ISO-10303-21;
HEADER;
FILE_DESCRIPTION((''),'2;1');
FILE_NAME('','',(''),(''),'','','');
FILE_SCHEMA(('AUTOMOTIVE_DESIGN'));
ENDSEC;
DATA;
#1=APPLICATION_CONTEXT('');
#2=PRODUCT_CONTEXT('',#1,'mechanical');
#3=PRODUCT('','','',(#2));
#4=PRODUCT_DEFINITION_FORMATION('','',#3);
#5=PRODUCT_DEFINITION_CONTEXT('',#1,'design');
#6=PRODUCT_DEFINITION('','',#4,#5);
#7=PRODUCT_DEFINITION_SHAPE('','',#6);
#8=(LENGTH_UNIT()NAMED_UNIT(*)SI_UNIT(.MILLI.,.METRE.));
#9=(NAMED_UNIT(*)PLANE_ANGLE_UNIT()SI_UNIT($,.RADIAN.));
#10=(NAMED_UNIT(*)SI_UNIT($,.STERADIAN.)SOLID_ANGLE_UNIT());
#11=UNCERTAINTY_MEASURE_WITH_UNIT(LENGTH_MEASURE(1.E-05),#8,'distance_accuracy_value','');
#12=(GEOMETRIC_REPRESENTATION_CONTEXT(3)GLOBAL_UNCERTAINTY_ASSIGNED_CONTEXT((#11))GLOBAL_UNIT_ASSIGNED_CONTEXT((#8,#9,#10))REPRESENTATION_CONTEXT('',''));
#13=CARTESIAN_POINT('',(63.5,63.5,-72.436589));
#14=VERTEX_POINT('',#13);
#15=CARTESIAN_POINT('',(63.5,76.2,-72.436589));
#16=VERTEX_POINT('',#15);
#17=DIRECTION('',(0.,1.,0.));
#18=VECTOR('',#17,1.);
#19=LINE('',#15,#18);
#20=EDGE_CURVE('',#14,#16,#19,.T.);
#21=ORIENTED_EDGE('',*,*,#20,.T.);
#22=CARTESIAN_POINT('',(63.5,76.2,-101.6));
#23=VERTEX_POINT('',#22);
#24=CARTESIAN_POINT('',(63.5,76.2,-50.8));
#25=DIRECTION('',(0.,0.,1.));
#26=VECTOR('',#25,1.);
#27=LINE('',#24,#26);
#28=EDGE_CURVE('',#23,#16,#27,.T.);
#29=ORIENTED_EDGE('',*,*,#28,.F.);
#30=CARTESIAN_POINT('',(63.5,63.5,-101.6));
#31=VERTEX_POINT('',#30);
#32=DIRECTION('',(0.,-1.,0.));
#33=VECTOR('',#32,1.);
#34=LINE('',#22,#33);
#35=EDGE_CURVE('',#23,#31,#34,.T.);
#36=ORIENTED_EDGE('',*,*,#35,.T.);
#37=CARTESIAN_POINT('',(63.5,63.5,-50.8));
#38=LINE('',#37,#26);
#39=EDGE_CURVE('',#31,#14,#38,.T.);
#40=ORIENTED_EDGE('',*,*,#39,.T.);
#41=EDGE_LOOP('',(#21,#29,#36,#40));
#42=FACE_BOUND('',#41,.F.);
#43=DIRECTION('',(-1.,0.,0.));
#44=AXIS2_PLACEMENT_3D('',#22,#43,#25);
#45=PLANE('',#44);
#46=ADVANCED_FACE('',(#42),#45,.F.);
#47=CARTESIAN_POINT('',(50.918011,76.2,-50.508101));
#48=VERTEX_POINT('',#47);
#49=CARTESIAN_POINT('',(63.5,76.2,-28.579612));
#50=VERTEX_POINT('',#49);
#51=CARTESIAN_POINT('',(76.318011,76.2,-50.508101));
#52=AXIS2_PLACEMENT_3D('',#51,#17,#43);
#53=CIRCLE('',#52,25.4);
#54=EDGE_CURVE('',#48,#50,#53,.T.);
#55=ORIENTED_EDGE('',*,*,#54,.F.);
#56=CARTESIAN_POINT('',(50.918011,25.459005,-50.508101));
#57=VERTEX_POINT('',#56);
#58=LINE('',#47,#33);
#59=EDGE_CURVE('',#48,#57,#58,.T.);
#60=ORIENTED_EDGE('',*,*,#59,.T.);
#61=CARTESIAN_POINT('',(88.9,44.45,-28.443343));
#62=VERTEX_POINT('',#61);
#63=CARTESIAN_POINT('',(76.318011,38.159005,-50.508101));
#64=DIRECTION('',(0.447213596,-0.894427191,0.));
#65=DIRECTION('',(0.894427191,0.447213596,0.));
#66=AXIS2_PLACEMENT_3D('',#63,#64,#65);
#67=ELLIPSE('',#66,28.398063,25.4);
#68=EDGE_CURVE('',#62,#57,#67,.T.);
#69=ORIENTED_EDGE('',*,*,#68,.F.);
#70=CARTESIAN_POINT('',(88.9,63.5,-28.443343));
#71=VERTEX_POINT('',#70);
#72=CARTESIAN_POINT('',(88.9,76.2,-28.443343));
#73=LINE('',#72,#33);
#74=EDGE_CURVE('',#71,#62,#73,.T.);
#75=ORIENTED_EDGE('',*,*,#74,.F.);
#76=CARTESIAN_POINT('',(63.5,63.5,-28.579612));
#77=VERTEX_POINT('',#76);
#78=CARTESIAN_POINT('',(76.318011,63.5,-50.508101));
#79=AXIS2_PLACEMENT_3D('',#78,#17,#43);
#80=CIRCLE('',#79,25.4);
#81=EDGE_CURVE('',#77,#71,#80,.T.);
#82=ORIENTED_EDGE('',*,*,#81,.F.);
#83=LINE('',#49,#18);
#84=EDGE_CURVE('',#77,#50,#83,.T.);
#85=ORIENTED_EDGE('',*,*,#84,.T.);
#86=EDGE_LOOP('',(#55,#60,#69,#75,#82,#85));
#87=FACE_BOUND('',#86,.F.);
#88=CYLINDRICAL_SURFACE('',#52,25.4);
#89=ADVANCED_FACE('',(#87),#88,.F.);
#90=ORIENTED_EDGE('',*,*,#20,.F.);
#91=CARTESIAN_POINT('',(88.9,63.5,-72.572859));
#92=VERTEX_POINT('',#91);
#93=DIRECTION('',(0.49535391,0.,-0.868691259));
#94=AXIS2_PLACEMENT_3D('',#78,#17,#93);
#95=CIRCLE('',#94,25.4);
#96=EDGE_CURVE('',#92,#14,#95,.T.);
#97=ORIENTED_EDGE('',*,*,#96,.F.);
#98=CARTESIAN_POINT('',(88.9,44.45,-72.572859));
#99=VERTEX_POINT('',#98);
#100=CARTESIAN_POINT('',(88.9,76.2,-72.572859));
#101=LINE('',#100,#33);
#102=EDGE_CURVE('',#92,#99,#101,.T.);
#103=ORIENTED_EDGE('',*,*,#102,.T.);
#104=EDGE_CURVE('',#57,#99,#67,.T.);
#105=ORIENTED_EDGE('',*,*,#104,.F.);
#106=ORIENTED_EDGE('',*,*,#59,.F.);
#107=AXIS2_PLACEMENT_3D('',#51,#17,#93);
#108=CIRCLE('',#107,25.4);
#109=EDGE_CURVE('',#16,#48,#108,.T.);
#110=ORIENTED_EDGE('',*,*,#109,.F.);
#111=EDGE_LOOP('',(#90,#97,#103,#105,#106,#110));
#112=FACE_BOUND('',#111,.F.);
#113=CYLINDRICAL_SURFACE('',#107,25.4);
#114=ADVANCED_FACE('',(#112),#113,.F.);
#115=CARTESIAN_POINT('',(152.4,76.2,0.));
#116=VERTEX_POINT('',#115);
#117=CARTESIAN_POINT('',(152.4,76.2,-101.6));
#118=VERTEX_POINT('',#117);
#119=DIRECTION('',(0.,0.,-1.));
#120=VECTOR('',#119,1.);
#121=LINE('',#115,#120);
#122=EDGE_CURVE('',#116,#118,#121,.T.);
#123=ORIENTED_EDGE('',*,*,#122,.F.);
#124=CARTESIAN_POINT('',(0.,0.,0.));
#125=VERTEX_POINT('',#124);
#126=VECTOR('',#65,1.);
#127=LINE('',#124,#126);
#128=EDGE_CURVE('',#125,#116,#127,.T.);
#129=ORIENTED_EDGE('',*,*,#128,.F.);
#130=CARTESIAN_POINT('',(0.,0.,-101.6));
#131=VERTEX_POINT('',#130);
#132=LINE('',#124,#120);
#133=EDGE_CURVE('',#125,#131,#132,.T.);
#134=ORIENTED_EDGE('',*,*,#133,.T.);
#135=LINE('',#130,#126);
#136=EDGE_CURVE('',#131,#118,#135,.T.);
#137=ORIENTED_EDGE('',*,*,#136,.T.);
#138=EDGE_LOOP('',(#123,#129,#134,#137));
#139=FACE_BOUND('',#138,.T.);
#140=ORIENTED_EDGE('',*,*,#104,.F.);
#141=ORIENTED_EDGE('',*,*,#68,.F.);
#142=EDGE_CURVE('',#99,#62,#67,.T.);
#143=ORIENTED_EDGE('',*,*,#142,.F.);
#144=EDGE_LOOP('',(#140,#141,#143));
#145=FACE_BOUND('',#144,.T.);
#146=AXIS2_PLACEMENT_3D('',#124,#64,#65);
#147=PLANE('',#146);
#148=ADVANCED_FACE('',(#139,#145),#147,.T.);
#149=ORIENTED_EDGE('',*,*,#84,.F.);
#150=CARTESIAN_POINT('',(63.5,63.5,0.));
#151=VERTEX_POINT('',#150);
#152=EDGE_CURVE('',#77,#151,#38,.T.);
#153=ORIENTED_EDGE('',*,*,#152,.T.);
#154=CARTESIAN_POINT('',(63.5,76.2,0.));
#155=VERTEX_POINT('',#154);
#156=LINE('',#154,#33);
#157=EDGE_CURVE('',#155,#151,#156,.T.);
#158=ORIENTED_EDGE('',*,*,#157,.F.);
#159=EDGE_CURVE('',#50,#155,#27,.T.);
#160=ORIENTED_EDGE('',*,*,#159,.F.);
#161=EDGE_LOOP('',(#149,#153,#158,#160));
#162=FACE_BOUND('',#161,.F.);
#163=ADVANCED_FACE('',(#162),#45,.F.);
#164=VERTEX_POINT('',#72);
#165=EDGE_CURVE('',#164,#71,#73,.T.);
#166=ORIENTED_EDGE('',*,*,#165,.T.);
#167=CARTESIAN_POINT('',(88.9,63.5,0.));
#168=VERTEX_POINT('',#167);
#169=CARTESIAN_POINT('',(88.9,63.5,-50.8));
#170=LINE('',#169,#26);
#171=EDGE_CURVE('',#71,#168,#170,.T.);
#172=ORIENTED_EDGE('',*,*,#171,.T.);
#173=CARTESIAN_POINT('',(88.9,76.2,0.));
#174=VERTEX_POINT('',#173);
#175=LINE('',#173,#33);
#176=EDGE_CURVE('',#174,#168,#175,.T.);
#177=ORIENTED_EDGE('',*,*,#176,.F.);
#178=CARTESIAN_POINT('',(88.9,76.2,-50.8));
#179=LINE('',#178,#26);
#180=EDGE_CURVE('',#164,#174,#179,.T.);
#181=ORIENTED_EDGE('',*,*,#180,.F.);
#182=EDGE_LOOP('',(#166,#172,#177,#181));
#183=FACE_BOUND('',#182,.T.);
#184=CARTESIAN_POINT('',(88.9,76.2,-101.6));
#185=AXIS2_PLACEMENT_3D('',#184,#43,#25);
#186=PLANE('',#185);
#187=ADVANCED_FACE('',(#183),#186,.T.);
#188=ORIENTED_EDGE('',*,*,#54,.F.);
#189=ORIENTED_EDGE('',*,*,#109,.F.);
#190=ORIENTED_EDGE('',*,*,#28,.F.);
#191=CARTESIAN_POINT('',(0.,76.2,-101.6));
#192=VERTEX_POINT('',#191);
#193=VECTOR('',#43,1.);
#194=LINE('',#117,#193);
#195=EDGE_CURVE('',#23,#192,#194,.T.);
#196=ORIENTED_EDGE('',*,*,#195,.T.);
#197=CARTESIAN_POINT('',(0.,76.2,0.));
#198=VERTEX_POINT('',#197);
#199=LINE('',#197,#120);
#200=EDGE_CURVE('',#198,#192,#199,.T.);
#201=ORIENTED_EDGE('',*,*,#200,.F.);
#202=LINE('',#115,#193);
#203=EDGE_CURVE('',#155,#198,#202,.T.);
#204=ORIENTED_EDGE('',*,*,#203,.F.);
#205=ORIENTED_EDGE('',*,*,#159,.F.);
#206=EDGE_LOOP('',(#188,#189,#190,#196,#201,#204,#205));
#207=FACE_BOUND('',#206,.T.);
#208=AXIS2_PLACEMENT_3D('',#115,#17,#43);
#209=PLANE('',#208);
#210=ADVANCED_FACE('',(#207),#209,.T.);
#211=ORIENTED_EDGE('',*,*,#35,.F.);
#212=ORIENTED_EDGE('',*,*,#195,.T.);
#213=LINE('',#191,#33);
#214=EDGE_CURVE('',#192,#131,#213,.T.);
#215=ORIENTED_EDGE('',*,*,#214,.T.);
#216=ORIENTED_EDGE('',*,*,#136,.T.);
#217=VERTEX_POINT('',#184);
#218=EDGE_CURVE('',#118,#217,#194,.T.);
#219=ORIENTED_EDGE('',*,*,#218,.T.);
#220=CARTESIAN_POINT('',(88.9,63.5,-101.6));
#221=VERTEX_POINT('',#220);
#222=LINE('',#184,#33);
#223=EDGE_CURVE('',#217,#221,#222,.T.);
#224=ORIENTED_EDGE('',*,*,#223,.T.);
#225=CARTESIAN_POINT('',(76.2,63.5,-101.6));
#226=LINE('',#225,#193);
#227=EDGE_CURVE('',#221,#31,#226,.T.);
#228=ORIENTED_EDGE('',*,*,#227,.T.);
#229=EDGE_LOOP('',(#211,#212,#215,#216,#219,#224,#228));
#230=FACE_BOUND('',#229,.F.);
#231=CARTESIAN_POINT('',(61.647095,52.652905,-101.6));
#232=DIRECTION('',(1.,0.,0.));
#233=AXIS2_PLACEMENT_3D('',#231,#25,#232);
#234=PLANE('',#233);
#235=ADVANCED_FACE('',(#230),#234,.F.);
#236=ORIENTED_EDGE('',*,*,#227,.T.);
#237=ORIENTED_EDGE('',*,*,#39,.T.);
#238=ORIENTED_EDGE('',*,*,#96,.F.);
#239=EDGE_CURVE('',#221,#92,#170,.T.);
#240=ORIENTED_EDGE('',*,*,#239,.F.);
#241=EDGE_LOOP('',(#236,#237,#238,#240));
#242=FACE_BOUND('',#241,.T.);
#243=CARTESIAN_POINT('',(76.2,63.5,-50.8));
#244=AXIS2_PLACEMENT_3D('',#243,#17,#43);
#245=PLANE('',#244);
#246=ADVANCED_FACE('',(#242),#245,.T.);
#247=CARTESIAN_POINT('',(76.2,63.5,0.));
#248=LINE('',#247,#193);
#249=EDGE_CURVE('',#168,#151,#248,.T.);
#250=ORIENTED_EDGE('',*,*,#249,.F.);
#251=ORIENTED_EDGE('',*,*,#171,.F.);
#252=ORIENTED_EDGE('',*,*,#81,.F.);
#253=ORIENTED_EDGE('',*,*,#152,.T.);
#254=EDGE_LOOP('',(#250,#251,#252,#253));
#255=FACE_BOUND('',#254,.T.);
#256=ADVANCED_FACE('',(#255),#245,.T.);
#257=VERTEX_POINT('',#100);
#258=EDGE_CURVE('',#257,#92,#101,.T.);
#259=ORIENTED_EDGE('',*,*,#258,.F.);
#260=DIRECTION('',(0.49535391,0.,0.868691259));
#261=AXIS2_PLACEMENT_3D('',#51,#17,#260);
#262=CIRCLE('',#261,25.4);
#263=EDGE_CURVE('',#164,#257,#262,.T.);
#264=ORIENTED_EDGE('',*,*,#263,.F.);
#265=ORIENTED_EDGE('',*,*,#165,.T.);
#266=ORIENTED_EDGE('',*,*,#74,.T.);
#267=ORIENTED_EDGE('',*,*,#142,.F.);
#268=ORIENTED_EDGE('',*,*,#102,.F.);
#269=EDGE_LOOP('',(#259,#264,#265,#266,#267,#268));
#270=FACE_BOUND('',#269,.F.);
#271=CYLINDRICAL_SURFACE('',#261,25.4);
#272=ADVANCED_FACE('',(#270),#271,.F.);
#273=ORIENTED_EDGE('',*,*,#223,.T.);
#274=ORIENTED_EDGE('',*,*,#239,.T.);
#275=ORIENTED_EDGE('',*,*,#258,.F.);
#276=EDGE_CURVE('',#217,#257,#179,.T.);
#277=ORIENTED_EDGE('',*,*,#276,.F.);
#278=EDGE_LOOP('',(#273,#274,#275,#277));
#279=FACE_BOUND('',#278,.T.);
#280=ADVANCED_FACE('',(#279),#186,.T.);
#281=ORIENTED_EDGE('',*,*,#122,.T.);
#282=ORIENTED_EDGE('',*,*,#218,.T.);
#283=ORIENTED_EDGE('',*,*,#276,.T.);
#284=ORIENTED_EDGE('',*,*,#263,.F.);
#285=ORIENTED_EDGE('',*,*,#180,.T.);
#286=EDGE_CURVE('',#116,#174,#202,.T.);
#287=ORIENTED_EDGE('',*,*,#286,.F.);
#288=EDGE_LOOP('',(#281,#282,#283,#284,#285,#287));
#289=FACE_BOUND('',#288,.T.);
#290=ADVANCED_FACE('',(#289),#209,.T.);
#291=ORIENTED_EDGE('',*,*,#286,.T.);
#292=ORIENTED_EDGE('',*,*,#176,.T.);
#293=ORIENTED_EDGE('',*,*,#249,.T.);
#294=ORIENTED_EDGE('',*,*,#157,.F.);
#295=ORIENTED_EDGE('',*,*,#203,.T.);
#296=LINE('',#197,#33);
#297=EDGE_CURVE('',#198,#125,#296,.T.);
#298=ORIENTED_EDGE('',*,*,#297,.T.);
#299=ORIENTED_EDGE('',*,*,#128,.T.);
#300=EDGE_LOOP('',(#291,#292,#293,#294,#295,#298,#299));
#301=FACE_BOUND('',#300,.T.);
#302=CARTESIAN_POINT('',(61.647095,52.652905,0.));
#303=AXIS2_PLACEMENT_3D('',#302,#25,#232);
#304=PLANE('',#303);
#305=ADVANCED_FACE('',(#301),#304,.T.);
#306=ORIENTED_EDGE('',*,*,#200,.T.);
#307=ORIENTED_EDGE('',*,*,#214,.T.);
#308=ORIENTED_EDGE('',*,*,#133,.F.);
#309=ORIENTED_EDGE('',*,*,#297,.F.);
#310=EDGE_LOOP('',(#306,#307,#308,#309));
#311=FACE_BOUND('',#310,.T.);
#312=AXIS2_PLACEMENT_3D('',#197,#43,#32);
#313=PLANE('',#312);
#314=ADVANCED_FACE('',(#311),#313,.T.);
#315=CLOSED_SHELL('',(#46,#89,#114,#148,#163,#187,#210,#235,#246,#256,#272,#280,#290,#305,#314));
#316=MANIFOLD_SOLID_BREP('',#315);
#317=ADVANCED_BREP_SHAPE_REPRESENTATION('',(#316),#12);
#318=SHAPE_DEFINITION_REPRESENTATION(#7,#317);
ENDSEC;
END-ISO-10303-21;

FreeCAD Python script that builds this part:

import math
import FreeCAD as App
import Part
import Sketcher
from FreeCAD import Vector
Q = App.Units.Quantity

doc = App.newDocument("Part")
params = doc.addObject("Spreadsheet::Sheet", "Params")
for row, (alias, value) in enumerate([
    ("sketch1_width", "6 in"),
    ("sketch1_height", "3 in"),
    ("pad1_length", "4 in"),
    ("sketch2_width", "1 in"),
    ("sketch2_height", "4 in"),
    ("pocket1_length", "0.5 in"),
    ("sketch3_radius", "1 in"),
], start=1):
    params.set(f"A{row}", alias)
    params.set(f"B{row}", "=" + value)
    params.setAlias(f"B{row}", alias)

body = doc.addObject("PartDesign::Body", "Body")

sketch1 = body.newObject("Sketcher::SketchObject", "Sketch")
sketch1.AttachmentSupport = (doc.getObject("XY_Plane"), [""])
sketch1.MapMode = "FlatFace"
sketch1.addGeometry([
    Part.LineSegment(Vector(0, 76, 0), Vector(0, 0, 0)),
    Part.LineSegment(Vector(0, 0, 0), Vector(152, 76, 0)),
    Part.LineSegment(Vector(152, 76, 0), Vector(0, 76, 0)),
], False)
sketch1.addConstraint([
    Sketcher.Constraint("Coincident", 0, 2, 1, 1),
    Sketcher.Constraint("Coincident", 1, 2, 2, 1),
    Sketcher.Constraint("Coincident", 2, 2, 0, 1),
    Sketcher.Constraint("Vertical", 0),
    Sketcher.Constraint("Horizontal", 2),
    Sketcher.Constraint("Coincident", 0, 2, -1, 1),
    Sketcher.Constraint("DistanceX", 2, 2, 2, 1, Q("6 in")),
    Sketcher.Constraint("DistanceY", 0, 2, 0, 1, Q("3 in")),
])
sketch1.setExpression("Constraints[6]", "Params.sketch1_width")
sketch1.setExpression("Constraints[7]", "Params.sketch1_height")
pad1 = body.newObject("PartDesign::Pad", "Pad")
pad1.Profile = sketch1
pad1.setExpression("Length", "Params.pad1_length")
pad1.Reversed = True

sketch2 = body.newObject("Sketcher::SketchObject", "Sketch001")
sketch2.AttachmentSupport = (doc.getObject("XZ_Plane"), [""])
sketch2.MapMode = "FlatFace"
sketch2.AttachmentOffset = App.Placement(Vector(0, 0, -3 * 25.4), App.Rotation())
sketch2.addGeometry([
    Part.LineSegment(Vector(89, 0, 0), Vector(89, -102, 0)),
    Part.LineSegment(Vector(89, -102, 0), Vector(64, -102, 0)),
    Part.LineSegment(Vector(64, -102, 0), Vector(64, 0, 0)),
    Part.LineSegment(Vector(64, 0, 0), Vector(89, 0, 0)),
], False)
sketch2.addConstraint([
    Sketcher.Constraint("Coincident", 0, 2, 1, 1),
    Sketcher.Constraint("Coincident", 1, 2, 2, 1),
    Sketcher.Constraint("Coincident", 2, 2, 3, 1),
    Sketcher.Constraint("Coincident", 3, 2, 0, 1),
    Sketcher.Constraint("Vertical", 0),
    Sketcher.Constraint("Horizontal", 1),
    Sketcher.Constraint("Vertical", 2),
    Sketcher.Constraint("Horizontal", 3),
    Sketcher.Constraint("PointOnObject", 2, 2, -1),
    Sketcher.Constraint("DistanceX", 1, 2, 1, 1, Q("1 in")),
    Sketcher.Constraint("DistanceY", 0, 2, 0, 1, Q("4 in")),
    Sketcher.Constraint("DistanceX", -1, 1, 0, 2, Q("3.5 in")),
])
sketch2.setExpression("Constraints[9]", "Params.sketch2_width")
sketch2.setExpression("Constraints[10]", "Params.sketch2_height")
pocket1 = body.newObject("PartDesign::Pocket", "Pocket")
pocket1.Profile = sketch2
pocket1.setExpression("Length", "Params.pocket1_length")
pocket1.Reversed = True

sketch3 = body.newObject("Sketcher::SketchObject", "Sketch002")
sketch3.AttachmentSupport = (doc.getObject("XZ_Plane"), [""])
sketch3.MapMode = "FlatFace"
sketch3.AttachmentOffset = App.Placement(Vector(0, 0, -3 * 25.4), App.Rotation())
sketch3.addGeometry([
    Part.ArcOfCircle(Part.Circle(Vector(76, -51, 0), Vector(0, 0, 1), 25), math.radians(180), math.radians(300)),
    Part.ArcOfCircle(Part.Circle(Vector(76, -51, 0), Vector(0, 0, 1), 25), math.radians(60), math.radians(180)),
    Part.ArcOfCircle(Part.Circle(Vector(76, -51, 0), Vector(0, 0, 1), 25), math.radians(-60), math.radians(60)),
], False)
sketch3.addConstraint([
    Sketcher.Constraint("Tangent", 0, 1, 1, 2),
    Sketcher.Constraint("Tangent", 1, 1, 2, 2),
    Sketcher.Constraint("Tangent", 2, 1, 0, 2),
    Sketcher.Constraint("Horizontal", 2, 3, 0, 1),
    Sketcher.Constraint("Vertical", 1, 1, 2, 1),
    Sketcher.Constraint("Radius", 0, Q("1 in")),
    Sketcher.Constraint("DistanceX", -1, 1, 1, 1, Q("3.5 in")),
    Sketcher.Constraint("DistanceY", 0, 3, -1, 1, 50.508101),
    Sketcher.Constraint("DistanceX", -1, 1, 0, 3, 76.318011),
])
sketch3.setExpression("Constraints[5]", "Params.sketch3_radius")
pocket2 = body.newObject("PartDesign::Pocket", "Pocket001")
pocket2.Profile = sketch3
pocket2.Type = "ThroughAll"
pocket2.Reversed = True

doc.recompute()
